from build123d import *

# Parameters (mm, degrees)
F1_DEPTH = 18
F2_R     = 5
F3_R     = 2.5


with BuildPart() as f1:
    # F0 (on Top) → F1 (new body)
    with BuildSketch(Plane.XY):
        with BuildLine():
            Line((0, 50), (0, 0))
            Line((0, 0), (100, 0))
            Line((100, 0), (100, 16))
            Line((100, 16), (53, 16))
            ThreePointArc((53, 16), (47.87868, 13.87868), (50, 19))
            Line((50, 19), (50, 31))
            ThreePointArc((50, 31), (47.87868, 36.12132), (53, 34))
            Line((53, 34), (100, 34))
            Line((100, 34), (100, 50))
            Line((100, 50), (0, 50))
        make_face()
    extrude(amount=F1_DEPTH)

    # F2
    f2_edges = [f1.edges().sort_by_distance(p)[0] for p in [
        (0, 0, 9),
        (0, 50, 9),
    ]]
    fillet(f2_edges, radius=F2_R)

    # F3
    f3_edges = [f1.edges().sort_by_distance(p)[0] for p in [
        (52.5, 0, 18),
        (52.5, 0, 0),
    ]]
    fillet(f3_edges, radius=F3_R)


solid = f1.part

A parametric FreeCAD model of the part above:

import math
import FreeCAD as App
import Part
import Sketcher
from FreeCAD import Vector


def edges_at(feature, points):
    """Names of the edges that pass closest to the given points."""
    edges = feature.Shape.Edges
    near = lambda p: min(range(len(edges)), key=lambda i: edges[i].distToShape(Part.Vertex(*p))[0])
    return sorted({f"Edge{near(p) + 1}" for p in points})

doc = App.newDocument("Part")
params = doc.addObject("Spreadsheet::Sheet", "Params")
for row, (alias, value) in enumerate([
    ("sketch1_radius", "3 mm"),
    ("sketch1_width", "100 mm"),
    ("sketch1_width2", "47 mm"),
    ("sketch1_height", "50 mm"),
    ("sketch1_height2", "16 mm"),
    ("pad1_length", "18 mm"),
    ("fillet_radius", "5 mm"),
    ("fillet2_radius", "2.5 mm"),
], start=1):
    params.set(f"A{row}", alias)
    params.set(f"B{row}", "=" + value)
    params.setAlias(f"B{row}", alias)

body = doc.addObject("PartDesign::Body", "Body")

sketch1 = body.newObject("Sketcher::SketchObject", "Sketch")
sketch1.AttachmentSupport = (doc.getObject("XY_Plane"), [""])
sketch1.MapMode = "FlatFace"
sketch1.addGeometry([
    Part.LineSegment(Vector(0, 50, 0), Vector(0, 0, 0)),
    Part.LineSegment(Vector(0, 0, 0), Vector(100, 0, 0)),
    Part.LineSegment(Vector(100, 0, 0), Vector(100, 16, 0)),
    Part.LineSegment(Vector(100, 16, 0), Vector(53, 16, 0)),
    Part.ArcOfCircle(Part.Circle(Vector(50, 16, 0), Vector(0, 0, 1), 3), math.radians(90), math.radians(360)),
    Part.LineSegment(Vector(50, 19, 0), Vector(50, 31, 0)),
    Part.ArcOfCircle(Part.Circle(Vector(50, 34, 0), Vector(0, 0, 1), 3), math.radians(0), math.radians(270)),
    Part.LineSegment(Vector(53, 34, 0), Vector(100, 34, 0)),
    Part.LineSegment(Vector(100, 34, 0), Vector(100, 50, 0)),
    Part.LineSegment(Vector(100, 50, 0), Vector(0, 50, 0)),
], False)
sketch1.addConstraint([
    Sketcher.Constraint("Coincident", 0, 2, 1, 1),
    Sketcher.Constraint("Coincident", 1, 2, 2, 1),
    Sketcher.Constraint("Coincident", 2, 2, 3, 1),
    Sketcher.Constraint("Coincident", 3, 2, 4, 2),
    Sketcher.Constraint("Coincident", 4, 1, 5, 1),
    Sketcher.Constraint("Coincident", 5, 2, 6, 2),
    Sketcher.Constraint("Coincident", 6, 1, 7, 1),
    Sketcher.Constraint("Coincident", 7, 2, 8, 1),
    Sketcher.Constraint("Coincident", 8, 2, 9, 1),
    Sketcher.Constraint("Coincident", 9, 2, 0, 1),
    Sketcher.Constraint("Vertical", 0),
    Sketcher.Constraint("Horizontal", 1),
    Sketcher.Constraint("Vertical", 2),
    Sketcher.Constraint("Horizontal", 3),
    Sketcher.Constraint("Vertical", 5),
    Sketcher.Constraint("Horizontal", 7),
    Sketcher.Constraint("Vertical", 8),
    Sketcher.Constraint("Horizontal", 9),
    Sketcher.Constraint("Coincident", 0, 2, -1, 1),
    Sketcher.Constraint("Equal", 4, 6),
    Sketcher.Constraint("Horizontal", 4, 3, 2, 2),
    Sketcher.Constraint("Vertical", 4, 3, 6, 3),
    Sketcher.Constraint("Vertical", 6, 3, 4, 1),
    Sketcher.Constraint("Vertical", 2, 2, 7, 2),
    Sketcher.Constraint("Equal", 2, 8),
    Sketcher.Constraint("Radius", 4, 3.0),
    Sketcher.Constraint("DistanceX", 1, 1, 1, 2, 100.0),
    Sketcher.Constraint("DistanceX", 3, 2, 3, 1, 47.0),
    Sketcher.Constraint("DistanceY", 0, 2, 0, 1, 50.0),
    Sketcher.Constraint("DistanceY", 2, 1, 2, 2, 16.0),
    Sketcher.Constraint("DistanceY", 5, 1, 5, 2, 12.0),
])
sketch1.setExpression("Constraints[25]", "Params.sketch1_radius")
sketch1.setExpression("Constraints[26]", "Params.sketch1_width")
sketch1.setExpression("Constraints[27]", "Params.sketch1_width2")
sketch1.setExpression("Constraints[28]", "Params.sketch1_height")
sketch1.setExpression("Constraints[29]", "Params.sketch1_height2")
pad1 = body.newObject("PartDesign::Pad", "Pad")
pad1.Profile = sketch1
pad1.setExpression("Length", "Params.pad1_length")
doc.recompute()

fillet = body.newObject("PartDesign::Fillet", "Fillet")
fillet.Base = (pad1, edges_at(pad1, [(0, 0, 9), (0, 50, 9)]))
fillet.setExpression("Radius", "Params.fillet_radius")
doc.recompute()

fillet2 = body.newObject("PartDesign::Fillet", "Fillet001")
fillet2.Base = (fillet, edges_at(fillet, [(52.5, 0, 18), (52.5, 0, 0)]))
fillet2.setExpression("Radius", "Params.fillet2_radius")

doc.recompute()
